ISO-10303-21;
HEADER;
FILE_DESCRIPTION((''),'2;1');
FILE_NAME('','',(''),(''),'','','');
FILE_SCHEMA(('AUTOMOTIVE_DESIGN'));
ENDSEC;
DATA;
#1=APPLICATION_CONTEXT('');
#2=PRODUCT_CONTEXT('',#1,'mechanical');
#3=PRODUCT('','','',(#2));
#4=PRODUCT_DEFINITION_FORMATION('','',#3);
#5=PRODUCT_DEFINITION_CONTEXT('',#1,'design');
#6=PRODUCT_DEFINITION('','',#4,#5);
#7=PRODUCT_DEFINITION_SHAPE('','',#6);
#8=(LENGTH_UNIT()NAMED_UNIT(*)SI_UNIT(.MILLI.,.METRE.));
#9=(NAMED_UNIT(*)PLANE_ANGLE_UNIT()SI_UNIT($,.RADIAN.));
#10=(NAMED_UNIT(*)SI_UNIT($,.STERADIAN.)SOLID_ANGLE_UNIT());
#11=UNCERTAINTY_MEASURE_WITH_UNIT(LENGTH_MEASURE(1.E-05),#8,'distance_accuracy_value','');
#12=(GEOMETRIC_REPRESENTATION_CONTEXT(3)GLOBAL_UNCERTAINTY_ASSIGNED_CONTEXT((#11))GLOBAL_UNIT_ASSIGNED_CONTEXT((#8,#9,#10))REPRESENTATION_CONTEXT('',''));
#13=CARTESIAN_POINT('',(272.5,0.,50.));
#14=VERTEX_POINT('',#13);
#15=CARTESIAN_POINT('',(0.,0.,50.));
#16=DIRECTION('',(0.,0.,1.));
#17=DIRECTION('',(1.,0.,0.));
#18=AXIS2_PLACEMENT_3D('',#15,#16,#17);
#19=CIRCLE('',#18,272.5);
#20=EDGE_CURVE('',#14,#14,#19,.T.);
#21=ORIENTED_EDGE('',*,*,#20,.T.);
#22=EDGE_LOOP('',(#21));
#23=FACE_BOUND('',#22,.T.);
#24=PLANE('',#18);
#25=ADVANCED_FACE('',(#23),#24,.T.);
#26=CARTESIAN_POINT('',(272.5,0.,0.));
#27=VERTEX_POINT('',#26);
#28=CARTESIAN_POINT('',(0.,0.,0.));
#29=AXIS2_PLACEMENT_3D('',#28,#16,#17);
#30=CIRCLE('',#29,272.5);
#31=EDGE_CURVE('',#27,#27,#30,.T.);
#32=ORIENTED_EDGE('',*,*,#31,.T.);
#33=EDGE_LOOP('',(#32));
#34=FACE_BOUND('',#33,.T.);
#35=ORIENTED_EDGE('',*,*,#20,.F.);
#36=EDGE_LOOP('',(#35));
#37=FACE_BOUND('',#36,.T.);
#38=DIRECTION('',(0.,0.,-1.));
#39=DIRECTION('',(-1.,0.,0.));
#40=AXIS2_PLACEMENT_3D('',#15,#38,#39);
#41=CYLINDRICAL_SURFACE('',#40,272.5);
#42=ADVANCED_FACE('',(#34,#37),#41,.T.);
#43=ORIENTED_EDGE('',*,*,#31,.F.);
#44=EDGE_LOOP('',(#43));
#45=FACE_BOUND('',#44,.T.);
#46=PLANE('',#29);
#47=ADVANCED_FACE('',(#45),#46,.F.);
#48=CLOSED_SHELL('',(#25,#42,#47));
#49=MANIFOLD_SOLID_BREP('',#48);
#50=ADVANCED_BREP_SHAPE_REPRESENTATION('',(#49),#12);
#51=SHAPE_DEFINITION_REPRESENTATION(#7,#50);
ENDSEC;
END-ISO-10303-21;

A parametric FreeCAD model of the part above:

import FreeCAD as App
import Part
import Sketcher

V = App.Vector

doc = App.newDocument("Part")
body = doc.addObject("PartDesign::Body", "Body")

sketch1 = body.newObject("Sketcher::SketchObject", "Sketch")
sketch1.AttachmentSupport = (doc.getObject("XY_Plane"), [""])
sketch1.MapMode = "FlatFace"
sketch1.addGeometry(Part.Circle(V(0, 0, 0), V(0, 0, 1), 272), False)
sketch1.addConstraint([
    Sketcher.Constraint("Coincident", 0, 3, -1, 1),
    Sketcher.Constraint("Diameter", 0, 545.0),
])
pad1 = body.newObject("PartDesign::Pad", "Pad")
pad1.Profile = sketch1
pad1.Length = 50

doc.recompute()
